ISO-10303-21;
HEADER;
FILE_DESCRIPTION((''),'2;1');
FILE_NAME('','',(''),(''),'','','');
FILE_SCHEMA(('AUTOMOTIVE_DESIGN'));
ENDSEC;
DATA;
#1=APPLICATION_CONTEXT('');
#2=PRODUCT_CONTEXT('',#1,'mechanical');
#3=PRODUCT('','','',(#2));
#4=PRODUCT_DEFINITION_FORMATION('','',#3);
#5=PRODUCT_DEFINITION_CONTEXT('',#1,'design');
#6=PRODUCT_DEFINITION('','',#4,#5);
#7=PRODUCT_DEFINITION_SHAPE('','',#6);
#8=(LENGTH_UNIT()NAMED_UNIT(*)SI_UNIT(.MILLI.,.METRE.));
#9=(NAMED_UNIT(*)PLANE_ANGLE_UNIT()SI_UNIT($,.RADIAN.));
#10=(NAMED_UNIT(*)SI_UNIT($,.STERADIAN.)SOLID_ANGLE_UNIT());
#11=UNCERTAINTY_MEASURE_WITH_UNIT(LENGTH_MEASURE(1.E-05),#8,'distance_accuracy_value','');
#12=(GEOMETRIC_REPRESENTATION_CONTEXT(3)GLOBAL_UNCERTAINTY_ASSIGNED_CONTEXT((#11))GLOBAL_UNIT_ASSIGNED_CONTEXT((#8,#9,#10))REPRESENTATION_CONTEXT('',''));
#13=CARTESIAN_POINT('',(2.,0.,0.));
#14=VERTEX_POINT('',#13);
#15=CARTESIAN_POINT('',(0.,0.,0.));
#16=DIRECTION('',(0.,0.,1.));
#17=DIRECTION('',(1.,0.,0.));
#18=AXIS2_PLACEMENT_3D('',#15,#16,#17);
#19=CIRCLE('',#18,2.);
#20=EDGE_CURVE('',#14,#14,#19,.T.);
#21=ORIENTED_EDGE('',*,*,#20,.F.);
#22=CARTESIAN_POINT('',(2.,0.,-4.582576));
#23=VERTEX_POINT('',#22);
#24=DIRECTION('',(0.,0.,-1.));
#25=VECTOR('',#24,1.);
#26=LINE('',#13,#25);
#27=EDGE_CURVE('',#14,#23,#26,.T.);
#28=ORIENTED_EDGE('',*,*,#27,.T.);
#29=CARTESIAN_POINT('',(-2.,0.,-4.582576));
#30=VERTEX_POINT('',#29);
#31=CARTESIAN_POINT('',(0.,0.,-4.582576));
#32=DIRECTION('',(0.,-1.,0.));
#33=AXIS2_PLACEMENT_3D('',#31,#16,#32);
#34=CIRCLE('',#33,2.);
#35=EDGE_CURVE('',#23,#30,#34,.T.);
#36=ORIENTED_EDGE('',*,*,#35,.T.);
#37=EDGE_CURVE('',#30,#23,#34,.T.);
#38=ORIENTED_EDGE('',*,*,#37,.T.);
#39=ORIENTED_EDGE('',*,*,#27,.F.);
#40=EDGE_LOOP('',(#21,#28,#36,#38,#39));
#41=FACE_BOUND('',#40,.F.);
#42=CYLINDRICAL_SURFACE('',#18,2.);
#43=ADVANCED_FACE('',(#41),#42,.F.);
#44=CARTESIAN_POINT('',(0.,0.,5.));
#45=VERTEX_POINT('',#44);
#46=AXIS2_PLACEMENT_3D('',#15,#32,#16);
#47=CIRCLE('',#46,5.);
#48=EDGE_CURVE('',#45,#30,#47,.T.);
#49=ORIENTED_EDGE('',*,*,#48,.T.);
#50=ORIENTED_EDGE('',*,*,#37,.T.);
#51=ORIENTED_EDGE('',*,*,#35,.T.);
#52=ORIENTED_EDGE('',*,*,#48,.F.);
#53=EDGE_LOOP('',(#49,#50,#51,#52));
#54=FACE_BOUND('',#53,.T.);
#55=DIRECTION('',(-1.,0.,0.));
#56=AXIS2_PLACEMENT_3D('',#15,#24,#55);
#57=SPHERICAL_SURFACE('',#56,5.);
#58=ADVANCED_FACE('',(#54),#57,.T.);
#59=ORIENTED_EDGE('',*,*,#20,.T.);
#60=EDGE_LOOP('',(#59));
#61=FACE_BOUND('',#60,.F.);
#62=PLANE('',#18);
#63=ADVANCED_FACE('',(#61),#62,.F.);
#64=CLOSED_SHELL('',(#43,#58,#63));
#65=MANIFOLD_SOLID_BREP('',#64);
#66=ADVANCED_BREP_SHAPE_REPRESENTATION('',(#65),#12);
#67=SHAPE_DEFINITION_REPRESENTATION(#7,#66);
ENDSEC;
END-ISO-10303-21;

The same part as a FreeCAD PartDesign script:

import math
import FreeCAD as App
import Part
import Sketcher
Q = App.Units.Quantity

doc = App.newDocument("Part")
body = doc.addObject("PartDesign::Body", "Body")

# Sketch on XZ plane
sketch1 = doc.addObject("Sketcher::SketchObject", "Sketch")
body.addObject(sketch1)
sketch1.AttachmentSupport = (doc.XZ_Plane, [""])
sketch1.MapMode = "FlatFace"
sketch1.addGeometry([
    Part.LineSegment(App.Vector(0, -5, 0), App.Vector(0, 5, 0)),
    Part.ArcOfCircle(Part.Circle(App.Vector(0, 0, 0), App.Vector(0, 0, 1), 5), math.radians(90), math.radians(270)),
], False)
sketch1.addConstraint([
    Sketcher.Constraint("Coincident", 0, 1, 1, 2),
    Sketcher.Constraint("Coincident", 1, 1, 0, 2),
    Sketcher.Constraint("Vertical", 0),
    Sketcher.Constraint("Coincident", 1, 3, -1, 1),
    Sketcher.Constraint("PointOnObject", 0, 1, -2),
    Sketcher.Constraint("Radius", 1, Q("5 mm")),
])
revolution = doc.addObject("PartDesign::Revolution", "Revolution")
body.addObject(revolution)
revolution.Profile = sketch1
revolution.ReferenceAxis = (sketch1, ["V_Axis"])
revolution.Angle = 360

# Sketch on XY plane
sketch2 = doc.addObject("Sketcher::SketchObject", "Sketch001")
body.addObject(sketch2)
sketch2.AttachmentSupport = (doc.XY_Plane, [""])
sketch2.MapMode = "FlatFace"
sketch2.addGeometry(Part.Circle(App.Vector(0, 0, 0), App.Vector(0, 0, 1), 2), False)
sketch2.addConstraint([
    Sketcher.Constraint("Coincident", 0, 3, -1, 1),
    Sketcher.Constraint("Diameter", 0, Q("4 mm")),
])
pocket1 = doc.addObject("PartDesign::Pocket", "Pocket")
body.addObject(pocket1)
pocket1.Profile = sketch2
pocket1.Length = 25

doc.recompute()
